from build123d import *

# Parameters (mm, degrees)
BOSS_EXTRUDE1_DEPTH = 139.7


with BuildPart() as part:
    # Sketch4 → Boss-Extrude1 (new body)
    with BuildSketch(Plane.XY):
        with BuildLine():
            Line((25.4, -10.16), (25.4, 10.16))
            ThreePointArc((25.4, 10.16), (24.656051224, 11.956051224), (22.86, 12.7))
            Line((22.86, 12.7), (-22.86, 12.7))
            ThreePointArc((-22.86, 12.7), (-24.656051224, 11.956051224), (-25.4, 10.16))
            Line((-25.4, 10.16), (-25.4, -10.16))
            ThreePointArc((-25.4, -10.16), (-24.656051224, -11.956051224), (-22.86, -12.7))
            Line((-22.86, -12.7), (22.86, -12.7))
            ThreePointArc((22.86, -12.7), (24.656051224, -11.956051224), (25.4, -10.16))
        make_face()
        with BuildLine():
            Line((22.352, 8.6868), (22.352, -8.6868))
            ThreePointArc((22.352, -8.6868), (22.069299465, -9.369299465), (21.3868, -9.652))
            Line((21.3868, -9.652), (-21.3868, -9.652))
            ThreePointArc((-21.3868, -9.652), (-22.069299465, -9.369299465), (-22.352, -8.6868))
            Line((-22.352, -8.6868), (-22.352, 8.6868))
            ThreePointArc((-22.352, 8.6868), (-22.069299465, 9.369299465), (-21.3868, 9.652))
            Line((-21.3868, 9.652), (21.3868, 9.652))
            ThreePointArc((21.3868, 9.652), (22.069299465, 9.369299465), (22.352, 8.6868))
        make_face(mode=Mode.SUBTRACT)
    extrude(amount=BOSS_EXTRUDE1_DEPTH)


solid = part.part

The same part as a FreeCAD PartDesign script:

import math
import FreeCAD as App
import Part
import Sketcher
Q = App.Units.Quantity

doc = App.newDocument("Part")
body = doc.addObject("PartDesign::Body", "Body")

sketch1 = body.newObject("Sketcher::SketchObject", "Sketch")
sketch1.AttachmentSupport = (doc.getObject("XY_Plane"), [""])
sketch1.MapMode = "FlatFace"
sketch1.addGeometry(Part.LineSegment(App.Vector(25.4, -10.2, 0), App.Vector(25.4, 10.2, 0)), False)
sketch1.addGeometry(Part.ArcOfCircle(Part.Circle(App.Vector(22.9, 10.2, 0), App.Vector(0, 0, 1), 2.5), math.radians(0), math.radians(90)), False)
sketch1.addGeometry(Part.LineSegment(App.Vector(22.9, 12.7, 0), App.Vector(-22.9, 12.7, 0)), False)
sketch1.addGeometry(Part.ArcOfCircle(Part.Circle(App.Vector(-22.9, 10.2, 0), App.Vector(0, 0, 1), 2.5), math.radians(90), math.radians(180)), False)
sketch1.addGeometry(Part.LineSegment(App.Vector(-25.4, 10.2, 0), App.Vector(-25.4, -10.2, 0)), False)
sketch1.addGeometry(Part.ArcOfCircle(Part.Circle(App.Vector(-22.9, -10.2, 0), App.Vector(0, 0, 1), 2.5), math.radians(-180), math.radians(-90)), False)
sketch1.addGeometry(Part.LineSegment(App.Vector(-22.9, -12.7, 0), App.Vector(22.9, -12.7, 0)), False)
sketch1.addGeometry(Part.ArcOfCircle(Part.Circle(App.Vector(22.9, -10.2, 0), App.Vector(0, 0, 1), 2.5), math.radians(-90), math.radians(0)), False)
sketch1.addGeometry(Part.ArcOfCircle(Part.Circle(App.Vector(21.4, 8.7, 0), App.Vector(0, 0, 1), 1), math.radians(0), math.radians(90)), False)
sketch1.addGeometry(Part.LineSegment(App.Vector(22.4, 8.7, 0), App.Vector(22.4, -8.7, 0)), False)
sketch1.addGeometry(Part.ArcOfCircle(Part.Circle(App.Vector(21.4, -8.7, 0), App.Vector(0, 0, 1), 1), math.radians(-90), math.radians(0)), False)
sketch1.addGeometry(Part.LineSegment(App.Vector(21.4, -9.7, 0), App.Vector(-21.4, -9.7, 0)), False)
sketch1.addGeometry(Part.ArcOfCircle(Part.Circle(App.Vector(-21.4, -8.7, 0), App.Vector(0, 0, 1), 1), math.radians(-180), math.radians(-90)), False)
sketch1.addGeometry(Part.LineSegment(App.Vector(-22.4, -8.7, 0), App.Vector(-22.4, 8.7, 0)), False)
sketch1.addGeometry(Part.ArcOfCircle(Part.Circle(App.Vector(-21.4, 8.7, 0), App.Vector(0, 0, 1), 1), math.radians(90), math.radians(180)), False)
sketch1.addGeometry(Part.LineSegment(App.Vector(-21.4, 9.7, 0), App.Vector(21.4, 9.7, 0)), False)
sketch1.addConstraint(Sketcher.Constraint("Tangent", 0, 2, 1, 1))
sketch1.addConstraint(Sketcher.Constraint("Tangent", 1, 2, 2, 1))
sketch1.addConstraint(Sketcher.Constraint("Tangent", 2, 2, 3, 1))
sketch1.addConstraint(Sketcher.Constraint("Tangent", 3, 2, 4, 1))
sketch1.addConstraint(Sketcher.Constraint("Tangent", 4, 2, 5, 1))
sketch1.addConstraint(Sketcher.Constraint("Tangent", 5, 2, 6, 1))
sketch1.addConstraint(Sketcher.Constraint("Tangent", 6, 2, 7, 1))
sketch1.addConstraint(Sketcher.Constraint("Tangent", 7, 2, 0, 1))
sketch1.addConstraint(Sketcher.Constraint("Tangent", 8, 1, 9, 1))
sketch1.addConstraint(Sketcher.Constraint("Tangent", 9, 2, 10, 2))
sketch1.addConstraint(Sketcher.Constraint("Tangent", 10, 1, 11, 1))
sketch1.addConstraint(Sketcher.Constraint("Tangent", 11, 2, 12, 2))
sketch1.addConstraint(Sketcher.Constraint("Tangent", 12, 1, 13, 1))
sketch1.addConstraint(Sketcher.Constraint("Tangent", 13, 2, 14, 2))
sketch1.addConstraint(Sketcher.Constraint("Tangent", 14, 1, 15, 1))
sketch1.addConstraint(Sketcher.Constraint("Tangent", 15, 2, 8, 2))
sketch1.addConstraint(Sketcher.Constraint("Vertical", 0))
sketch1.addConstraint(Sketcher.Constraint("Horizontal", 2))
sketch1.addConstraint(Sketcher.Constraint("Vertical", 4))
sketch1.addConstraint(Sketcher.Constraint("Horizontal", 6))
sketch1.addConstraint(Sketcher.Constraint("Vertical", 9))
sketch1.addConstraint(Sketcher.Constraint("Horizontal", 11))
sketch1.addConstraint(Sketcher.Constraint("Vertical", 13))
sketch1.addConstraint(Sketcher.Constraint("Horizontal", 15))
sketch1.addConstraint(Sketcher.Constraint("Equal", 1, 3))
sketch1.addConstraint(Sketcher.Constraint("Equal", 3, 5))
sketch1.addConstraint(Sketcher.Constraint("Equal", 5, 7))
sketch1.addConstraint(Sketcher.Constraint("Equal", 8, 10))
sketch1.addConstraint(Sketcher.Constraint("Equal", 10, 12))
sketch1.addConstraint(Sketcher.Constraint("Equal", 12, 14))
sketch1.addConstraint(Sketcher.Constraint("Symmetric", 1, 3, 5, 3, -1, 1))
sketch1.addConstraint(Sketcher.Constraint("Symmetric", 8, 3, 12, 3, -1, 1))
sketch1.addConstraint(Sketcher.Constraint("Radius", 1, Q("0.1 in")))
sketch1.addConstraint(Sketcher.Constraint("DistanceX", 2, 2, 2, 1, Q("1.8 in")))
sketch1.addConstraint(Sketcher.Constraint("DistanceY", 0, 1, 0, 2, Q("0.8 in")))
sketch1.addConstraint(Sketcher.Constraint("Radius", 8, Q("0.038 in")))
sketch1.addConstraint(Sketcher.Constraint("DistanceX", 11, 2, 11, 1, Q("1.684 in")))
sketch1.addConstraint(Sketcher.Constraint("DistanceY", 9, 2, 9, 1, Q("0.684 in")))
pad1 = body.newObject("PartDesign::Pad", "Pad")
pad1.Profile = sketch1
pad1.Length = Q("5.5 in")

doc.recompute()
